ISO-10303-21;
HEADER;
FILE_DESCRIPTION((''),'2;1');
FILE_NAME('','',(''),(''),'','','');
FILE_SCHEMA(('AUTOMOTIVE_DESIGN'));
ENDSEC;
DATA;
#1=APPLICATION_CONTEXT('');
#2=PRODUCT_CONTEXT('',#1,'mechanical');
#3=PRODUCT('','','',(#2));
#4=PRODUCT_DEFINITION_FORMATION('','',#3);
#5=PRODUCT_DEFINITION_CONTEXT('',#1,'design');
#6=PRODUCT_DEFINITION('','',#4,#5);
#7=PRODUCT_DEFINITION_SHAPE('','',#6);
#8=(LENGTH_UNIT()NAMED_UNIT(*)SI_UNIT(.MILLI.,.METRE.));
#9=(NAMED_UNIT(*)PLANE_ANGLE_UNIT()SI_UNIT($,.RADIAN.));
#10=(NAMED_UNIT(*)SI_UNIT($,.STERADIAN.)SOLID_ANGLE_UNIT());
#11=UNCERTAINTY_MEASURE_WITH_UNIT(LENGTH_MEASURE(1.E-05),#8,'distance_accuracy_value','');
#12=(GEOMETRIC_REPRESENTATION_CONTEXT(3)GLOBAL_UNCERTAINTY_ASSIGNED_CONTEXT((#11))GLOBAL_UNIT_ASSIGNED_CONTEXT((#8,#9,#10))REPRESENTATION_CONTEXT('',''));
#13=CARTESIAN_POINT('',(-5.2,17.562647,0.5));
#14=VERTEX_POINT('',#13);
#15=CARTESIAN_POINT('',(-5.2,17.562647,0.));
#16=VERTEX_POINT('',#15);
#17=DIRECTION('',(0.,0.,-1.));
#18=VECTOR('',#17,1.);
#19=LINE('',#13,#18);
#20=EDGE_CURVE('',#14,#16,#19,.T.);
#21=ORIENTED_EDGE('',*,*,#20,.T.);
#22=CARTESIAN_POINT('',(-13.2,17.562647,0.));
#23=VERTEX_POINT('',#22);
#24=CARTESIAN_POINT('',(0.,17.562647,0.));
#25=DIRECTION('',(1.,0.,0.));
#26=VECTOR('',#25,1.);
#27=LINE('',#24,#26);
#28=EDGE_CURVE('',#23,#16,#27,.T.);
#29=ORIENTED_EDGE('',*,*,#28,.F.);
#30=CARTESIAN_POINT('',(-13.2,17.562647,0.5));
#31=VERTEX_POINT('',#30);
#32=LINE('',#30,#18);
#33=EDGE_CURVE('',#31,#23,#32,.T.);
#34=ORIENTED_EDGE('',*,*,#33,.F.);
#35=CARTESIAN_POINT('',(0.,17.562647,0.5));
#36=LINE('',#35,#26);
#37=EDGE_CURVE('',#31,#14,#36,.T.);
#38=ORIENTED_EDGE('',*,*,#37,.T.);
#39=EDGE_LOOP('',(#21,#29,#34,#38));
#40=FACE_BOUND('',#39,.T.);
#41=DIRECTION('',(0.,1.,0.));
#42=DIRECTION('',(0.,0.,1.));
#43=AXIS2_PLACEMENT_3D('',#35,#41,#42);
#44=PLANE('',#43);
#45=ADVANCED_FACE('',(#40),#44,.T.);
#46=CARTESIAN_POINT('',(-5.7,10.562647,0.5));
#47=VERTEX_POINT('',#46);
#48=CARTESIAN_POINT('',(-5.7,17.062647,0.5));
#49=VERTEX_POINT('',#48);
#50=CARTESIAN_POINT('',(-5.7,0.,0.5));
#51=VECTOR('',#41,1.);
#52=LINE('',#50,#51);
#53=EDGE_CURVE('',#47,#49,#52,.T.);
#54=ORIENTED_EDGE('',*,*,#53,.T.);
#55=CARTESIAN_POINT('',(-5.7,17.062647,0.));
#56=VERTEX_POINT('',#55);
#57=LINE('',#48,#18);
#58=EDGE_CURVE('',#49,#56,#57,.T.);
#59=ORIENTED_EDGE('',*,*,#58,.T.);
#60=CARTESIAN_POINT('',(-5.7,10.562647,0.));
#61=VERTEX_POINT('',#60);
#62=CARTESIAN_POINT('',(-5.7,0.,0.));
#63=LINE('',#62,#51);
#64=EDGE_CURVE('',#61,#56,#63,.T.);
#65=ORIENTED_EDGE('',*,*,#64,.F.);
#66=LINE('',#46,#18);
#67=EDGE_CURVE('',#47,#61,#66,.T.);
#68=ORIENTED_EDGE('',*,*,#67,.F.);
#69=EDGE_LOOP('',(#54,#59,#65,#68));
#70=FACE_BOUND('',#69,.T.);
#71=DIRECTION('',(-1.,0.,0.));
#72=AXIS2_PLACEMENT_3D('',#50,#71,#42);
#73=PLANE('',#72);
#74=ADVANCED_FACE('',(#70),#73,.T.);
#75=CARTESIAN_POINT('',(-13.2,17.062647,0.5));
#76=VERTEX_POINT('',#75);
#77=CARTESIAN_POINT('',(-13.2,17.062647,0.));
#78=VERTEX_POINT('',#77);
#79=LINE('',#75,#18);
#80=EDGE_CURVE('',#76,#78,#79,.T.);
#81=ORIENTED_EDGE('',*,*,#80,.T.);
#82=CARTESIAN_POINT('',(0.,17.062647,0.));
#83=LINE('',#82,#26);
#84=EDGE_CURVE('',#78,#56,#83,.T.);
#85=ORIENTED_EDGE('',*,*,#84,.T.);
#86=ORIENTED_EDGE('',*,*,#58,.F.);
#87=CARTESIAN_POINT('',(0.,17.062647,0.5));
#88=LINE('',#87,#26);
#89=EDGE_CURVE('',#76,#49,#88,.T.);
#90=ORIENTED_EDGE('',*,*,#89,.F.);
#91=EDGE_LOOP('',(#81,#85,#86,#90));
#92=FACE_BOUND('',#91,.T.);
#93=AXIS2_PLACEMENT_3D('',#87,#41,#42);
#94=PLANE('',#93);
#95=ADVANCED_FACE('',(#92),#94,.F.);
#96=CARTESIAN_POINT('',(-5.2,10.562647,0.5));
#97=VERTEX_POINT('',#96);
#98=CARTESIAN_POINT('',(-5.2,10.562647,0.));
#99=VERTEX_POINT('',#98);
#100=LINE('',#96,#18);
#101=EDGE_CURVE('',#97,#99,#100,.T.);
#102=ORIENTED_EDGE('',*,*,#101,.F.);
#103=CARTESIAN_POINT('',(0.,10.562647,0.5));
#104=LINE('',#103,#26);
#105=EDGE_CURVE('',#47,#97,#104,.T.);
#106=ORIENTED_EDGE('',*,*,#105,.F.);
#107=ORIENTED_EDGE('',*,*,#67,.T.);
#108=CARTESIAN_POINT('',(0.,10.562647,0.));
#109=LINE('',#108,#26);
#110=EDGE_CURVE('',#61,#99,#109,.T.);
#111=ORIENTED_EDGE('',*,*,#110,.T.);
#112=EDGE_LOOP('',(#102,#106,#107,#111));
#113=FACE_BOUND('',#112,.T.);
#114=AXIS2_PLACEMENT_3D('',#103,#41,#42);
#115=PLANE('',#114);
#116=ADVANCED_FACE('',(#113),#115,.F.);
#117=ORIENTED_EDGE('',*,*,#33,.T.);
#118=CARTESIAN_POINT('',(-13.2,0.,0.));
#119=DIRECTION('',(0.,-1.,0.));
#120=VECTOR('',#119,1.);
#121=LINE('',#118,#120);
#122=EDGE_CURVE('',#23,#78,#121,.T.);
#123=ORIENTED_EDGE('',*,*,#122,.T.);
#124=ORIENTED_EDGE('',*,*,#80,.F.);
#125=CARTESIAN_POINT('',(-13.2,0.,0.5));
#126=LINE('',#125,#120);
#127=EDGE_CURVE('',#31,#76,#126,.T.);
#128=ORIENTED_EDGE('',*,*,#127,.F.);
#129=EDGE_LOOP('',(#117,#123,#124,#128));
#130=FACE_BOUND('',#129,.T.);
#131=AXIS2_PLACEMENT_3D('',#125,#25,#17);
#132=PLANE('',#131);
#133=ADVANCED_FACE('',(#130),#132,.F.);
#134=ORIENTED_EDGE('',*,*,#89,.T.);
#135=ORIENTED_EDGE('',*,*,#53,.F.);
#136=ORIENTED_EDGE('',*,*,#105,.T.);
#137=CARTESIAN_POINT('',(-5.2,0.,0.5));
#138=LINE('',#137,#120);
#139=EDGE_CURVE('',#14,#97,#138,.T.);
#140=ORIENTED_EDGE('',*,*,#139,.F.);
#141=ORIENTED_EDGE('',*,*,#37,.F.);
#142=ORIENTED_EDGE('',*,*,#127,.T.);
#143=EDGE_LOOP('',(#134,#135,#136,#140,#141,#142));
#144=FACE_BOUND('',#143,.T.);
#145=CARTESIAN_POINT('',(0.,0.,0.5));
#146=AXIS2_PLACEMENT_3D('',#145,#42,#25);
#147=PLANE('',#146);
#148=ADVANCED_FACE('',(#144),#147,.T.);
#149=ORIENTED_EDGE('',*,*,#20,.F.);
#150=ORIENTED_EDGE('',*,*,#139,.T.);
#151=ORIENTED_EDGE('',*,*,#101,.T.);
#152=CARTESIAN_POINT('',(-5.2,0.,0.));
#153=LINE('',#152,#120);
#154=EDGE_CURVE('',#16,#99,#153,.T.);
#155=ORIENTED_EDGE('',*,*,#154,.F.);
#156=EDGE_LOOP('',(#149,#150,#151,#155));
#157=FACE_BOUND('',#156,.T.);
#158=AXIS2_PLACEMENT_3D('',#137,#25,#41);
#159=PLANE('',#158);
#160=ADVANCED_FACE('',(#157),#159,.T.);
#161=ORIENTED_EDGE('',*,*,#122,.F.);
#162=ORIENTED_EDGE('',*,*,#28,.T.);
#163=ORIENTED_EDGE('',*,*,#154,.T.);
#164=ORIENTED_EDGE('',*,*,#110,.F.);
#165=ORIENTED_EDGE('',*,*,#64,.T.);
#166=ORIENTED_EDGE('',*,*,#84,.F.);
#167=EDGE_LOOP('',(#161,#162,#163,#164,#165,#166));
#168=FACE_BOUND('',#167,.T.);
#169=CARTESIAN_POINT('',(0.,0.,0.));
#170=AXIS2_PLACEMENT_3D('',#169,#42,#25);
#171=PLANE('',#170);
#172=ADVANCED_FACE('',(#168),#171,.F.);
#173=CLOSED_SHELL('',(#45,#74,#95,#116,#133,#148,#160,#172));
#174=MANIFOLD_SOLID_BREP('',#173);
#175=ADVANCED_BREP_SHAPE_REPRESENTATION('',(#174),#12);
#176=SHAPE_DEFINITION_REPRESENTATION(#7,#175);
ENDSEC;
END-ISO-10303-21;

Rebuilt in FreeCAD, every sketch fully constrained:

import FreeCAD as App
import Part
import Sketcher
from FreeCAD import Vector
Q = App.Units.Quantity


def add_polygon(sketch, points):
    """Adds a closed chain of lines whose ends are joined by coincident constraints."""
    first, n = sketch.GeometryCount, len(points)
    for a, b in zip(points, points[1:] + points[:1]):
        sketch.addGeometry(Part.LineSegment(App.Vector(*a, 0), App.Vector(*b, 0)), False)
    for i in range(n):
        sketch.addConstraint(Sketcher.Constraint("Coincident", first + i, 2, first + (i + 1) % n, 1))

doc = App.newDocument("Part")
body = doc.addObject("PartDesign::Body", "Body")

sketch1 = body.newObject("Sketcher::SketchObject", "Sketch")
sketch1.AttachmentSupport = (doc.getObject("XY_Plane"), [""])
sketch1.MapMode = "FlatFace"
add_polygon(sketch1, [(-5.7, 17.1), (-5.7, 10.6), (-5.2, 10.6), (-5.2, 17.6), (-13.2, 17.6), (-13.2, 17.1)])
sketch1.addConstraint(Sketcher.Constraint("Vertical", 0))
sketch1.addConstraint(Sketcher.Constraint("Horizontal", 1))
sketch1.addConstraint(Sketcher.Constraint("Vertical", 2))
sketch1.addConstraint(Sketcher.Constraint("Horizontal", 3))
sketch1.addConstraint(Sketcher.Constraint("Vertical", 4))
sketch1.addConstraint(Sketcher.Constraint("Horizontal", 5))
sketch1.addConstraint(Sketcher.Constraint("Equal", 1, 4))
sketch1.addConstraint(Sketcher.Constraint("DistanceX", 3, 2, 3, 1, Q("8 mm")))
sketch1.addConstraint(Sketcher.Constraint("DistanceY", 2, 1, 2, 2, Q("7 mm")))
sketch1.addConstraint(Sketcher.Constraint("DistanceX", 1, 1, 1, 2, Q("0.5 mm")))
sketch1.addConstraint(Sketcher.Constraint("DistanceX", 0, 2, -1, 1, Q("5.7 mm")))
sketch1.addConstraint(Sketcher.Constraint("DistanceY", -1, 1, 0, 2, Q("10.562647 mm")))
pad1 = body.newObject("PartDesign::Pad", "Pad")
pad1.Profile = sketch1
pad1.Length = 0.5

doc.recompute()
